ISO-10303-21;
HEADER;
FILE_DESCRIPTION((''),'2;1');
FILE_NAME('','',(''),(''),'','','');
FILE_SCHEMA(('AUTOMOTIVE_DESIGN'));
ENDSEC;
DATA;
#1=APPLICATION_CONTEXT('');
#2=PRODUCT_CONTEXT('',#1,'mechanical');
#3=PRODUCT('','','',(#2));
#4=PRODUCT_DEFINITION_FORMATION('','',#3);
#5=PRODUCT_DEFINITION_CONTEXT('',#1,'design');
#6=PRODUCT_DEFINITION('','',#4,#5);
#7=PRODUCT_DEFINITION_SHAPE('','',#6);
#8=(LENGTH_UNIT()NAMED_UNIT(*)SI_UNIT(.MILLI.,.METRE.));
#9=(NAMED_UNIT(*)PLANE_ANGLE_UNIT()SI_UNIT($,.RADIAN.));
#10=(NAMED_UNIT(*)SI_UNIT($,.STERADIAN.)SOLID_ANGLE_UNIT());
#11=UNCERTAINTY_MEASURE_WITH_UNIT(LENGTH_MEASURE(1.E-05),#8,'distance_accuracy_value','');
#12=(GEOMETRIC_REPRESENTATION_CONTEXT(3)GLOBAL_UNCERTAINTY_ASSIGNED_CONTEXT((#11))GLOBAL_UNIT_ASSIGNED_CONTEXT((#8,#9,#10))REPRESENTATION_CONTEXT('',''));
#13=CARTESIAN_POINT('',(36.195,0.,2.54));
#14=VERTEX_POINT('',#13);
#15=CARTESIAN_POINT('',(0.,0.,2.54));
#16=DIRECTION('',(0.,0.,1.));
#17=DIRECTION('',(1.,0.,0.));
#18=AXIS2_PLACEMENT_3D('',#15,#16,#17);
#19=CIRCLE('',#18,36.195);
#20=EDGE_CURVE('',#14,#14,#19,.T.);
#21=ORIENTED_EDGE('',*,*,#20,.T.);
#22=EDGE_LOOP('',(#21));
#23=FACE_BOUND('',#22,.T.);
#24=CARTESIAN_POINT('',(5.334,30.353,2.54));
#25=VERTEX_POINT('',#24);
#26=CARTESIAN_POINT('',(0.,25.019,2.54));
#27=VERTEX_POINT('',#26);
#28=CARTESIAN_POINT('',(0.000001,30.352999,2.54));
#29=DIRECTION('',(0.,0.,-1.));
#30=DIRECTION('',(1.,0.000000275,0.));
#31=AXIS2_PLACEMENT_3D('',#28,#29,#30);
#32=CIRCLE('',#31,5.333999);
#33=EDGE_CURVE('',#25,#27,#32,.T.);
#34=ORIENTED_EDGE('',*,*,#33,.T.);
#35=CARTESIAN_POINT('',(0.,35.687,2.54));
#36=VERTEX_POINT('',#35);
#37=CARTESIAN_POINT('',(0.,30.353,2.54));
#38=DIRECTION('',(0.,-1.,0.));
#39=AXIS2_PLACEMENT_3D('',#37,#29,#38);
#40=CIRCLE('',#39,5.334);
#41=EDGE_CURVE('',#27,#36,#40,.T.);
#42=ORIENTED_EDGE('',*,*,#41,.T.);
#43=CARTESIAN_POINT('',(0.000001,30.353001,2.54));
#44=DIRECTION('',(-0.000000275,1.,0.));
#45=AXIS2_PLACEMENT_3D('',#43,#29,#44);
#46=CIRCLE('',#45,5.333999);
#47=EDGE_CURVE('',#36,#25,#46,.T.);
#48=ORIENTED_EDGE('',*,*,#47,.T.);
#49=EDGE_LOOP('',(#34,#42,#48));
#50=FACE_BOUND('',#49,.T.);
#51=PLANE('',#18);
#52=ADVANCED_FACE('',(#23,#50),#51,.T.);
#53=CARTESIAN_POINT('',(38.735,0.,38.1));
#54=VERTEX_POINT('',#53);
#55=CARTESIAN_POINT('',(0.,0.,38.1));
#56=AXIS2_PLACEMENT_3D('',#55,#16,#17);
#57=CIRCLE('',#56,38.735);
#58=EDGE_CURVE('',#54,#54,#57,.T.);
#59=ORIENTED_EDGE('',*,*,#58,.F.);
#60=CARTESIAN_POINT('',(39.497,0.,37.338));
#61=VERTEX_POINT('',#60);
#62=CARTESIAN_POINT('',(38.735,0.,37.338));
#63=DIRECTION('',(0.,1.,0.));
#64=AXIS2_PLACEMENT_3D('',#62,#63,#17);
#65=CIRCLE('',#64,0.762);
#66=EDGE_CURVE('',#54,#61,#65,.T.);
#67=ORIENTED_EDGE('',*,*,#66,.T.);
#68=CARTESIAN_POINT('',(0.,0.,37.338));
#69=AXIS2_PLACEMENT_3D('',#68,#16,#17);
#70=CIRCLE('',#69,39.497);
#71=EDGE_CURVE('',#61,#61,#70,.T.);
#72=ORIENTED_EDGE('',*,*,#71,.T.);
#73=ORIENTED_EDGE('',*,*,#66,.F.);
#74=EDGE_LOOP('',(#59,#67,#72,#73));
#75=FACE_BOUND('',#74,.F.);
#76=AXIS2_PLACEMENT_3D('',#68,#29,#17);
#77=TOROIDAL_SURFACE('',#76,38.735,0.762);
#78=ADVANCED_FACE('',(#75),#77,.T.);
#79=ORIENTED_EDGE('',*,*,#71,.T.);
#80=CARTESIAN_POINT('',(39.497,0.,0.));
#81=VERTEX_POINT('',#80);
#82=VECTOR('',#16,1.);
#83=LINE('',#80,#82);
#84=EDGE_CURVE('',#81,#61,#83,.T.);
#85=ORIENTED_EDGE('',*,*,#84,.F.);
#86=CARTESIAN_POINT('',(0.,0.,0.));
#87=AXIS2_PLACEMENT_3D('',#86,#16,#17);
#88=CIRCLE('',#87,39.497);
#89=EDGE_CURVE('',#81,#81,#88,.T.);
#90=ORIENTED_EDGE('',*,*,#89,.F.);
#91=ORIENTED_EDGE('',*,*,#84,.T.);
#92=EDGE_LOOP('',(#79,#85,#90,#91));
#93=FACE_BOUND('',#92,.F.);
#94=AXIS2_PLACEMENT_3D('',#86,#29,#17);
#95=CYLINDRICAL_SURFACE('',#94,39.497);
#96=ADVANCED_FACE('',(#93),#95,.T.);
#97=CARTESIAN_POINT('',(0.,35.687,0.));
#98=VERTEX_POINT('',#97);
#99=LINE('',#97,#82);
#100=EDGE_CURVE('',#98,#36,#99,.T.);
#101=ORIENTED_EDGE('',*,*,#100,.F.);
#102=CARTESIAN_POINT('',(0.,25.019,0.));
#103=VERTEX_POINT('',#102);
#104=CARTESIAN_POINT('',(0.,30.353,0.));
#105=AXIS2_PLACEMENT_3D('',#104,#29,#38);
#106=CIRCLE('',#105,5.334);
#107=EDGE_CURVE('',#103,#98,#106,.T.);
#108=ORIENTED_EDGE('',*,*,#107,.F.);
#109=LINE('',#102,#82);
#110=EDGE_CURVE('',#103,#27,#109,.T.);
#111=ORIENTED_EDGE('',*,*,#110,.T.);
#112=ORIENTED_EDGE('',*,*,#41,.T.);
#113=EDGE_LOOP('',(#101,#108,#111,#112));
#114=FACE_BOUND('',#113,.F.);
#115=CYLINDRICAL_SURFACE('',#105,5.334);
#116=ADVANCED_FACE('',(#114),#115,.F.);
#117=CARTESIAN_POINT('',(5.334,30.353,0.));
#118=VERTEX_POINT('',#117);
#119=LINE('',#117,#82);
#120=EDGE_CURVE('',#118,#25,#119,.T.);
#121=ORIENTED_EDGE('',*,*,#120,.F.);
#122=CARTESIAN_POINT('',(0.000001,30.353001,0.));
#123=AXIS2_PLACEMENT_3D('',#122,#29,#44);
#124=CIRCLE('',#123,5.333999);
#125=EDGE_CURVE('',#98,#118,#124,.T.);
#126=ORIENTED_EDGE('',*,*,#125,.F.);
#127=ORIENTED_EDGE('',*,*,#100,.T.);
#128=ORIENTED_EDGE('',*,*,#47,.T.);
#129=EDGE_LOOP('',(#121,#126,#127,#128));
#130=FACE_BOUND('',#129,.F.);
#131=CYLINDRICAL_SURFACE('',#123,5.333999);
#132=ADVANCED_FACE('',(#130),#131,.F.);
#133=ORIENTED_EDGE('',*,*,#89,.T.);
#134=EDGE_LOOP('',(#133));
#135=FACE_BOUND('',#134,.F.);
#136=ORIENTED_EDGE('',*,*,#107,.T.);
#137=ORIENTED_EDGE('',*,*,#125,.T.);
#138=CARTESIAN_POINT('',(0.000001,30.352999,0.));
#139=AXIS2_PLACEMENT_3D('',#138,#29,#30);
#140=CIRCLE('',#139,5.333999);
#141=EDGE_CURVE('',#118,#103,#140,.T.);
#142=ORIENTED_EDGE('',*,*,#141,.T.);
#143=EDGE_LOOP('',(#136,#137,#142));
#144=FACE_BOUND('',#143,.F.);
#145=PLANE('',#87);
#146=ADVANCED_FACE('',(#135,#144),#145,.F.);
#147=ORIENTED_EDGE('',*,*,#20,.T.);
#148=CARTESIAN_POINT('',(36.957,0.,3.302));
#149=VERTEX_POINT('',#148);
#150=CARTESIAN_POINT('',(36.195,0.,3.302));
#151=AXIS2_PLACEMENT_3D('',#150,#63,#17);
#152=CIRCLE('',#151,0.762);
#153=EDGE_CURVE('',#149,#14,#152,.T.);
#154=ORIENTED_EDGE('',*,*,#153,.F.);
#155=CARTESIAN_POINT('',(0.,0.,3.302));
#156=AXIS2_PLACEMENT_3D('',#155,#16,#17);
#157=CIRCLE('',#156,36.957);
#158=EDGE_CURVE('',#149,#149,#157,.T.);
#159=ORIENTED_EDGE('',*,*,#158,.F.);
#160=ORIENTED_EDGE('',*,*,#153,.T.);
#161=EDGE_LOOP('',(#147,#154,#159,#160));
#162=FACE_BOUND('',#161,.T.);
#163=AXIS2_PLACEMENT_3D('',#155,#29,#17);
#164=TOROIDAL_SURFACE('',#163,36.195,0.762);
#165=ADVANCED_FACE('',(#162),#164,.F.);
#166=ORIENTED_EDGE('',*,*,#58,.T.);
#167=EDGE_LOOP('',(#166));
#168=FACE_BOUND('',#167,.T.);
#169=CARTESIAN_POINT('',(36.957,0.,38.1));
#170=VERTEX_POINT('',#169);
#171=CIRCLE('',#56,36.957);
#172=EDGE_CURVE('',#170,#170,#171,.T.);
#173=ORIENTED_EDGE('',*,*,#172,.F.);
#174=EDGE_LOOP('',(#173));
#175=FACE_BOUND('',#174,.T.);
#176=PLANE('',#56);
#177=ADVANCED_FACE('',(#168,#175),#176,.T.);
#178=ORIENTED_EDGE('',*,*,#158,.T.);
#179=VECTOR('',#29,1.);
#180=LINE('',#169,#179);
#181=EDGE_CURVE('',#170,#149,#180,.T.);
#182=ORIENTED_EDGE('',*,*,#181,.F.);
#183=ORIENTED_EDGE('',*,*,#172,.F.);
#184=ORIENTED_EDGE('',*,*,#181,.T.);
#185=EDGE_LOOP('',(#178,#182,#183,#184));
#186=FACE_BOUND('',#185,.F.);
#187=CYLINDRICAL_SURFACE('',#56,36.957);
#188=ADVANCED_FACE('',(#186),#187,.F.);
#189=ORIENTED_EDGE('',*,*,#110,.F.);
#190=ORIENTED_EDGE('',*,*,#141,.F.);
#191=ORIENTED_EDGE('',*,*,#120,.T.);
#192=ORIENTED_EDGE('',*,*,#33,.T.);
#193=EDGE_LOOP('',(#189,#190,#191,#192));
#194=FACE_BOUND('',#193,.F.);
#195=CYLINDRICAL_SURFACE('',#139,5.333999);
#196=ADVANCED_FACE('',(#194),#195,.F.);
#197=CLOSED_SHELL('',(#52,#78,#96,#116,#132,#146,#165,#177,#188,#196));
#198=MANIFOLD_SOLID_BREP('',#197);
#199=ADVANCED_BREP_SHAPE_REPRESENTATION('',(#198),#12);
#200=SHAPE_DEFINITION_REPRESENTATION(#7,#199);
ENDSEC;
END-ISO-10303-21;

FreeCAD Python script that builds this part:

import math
import FreeCAD as App
import Part
import Sketcher

V = App.Vector
Q = App.Units.Quantity


def edges_at(feature, points):
    """Names of the edges that pass closest to the given points."""
    edges = feature.Shape.Edges
    near = lambda p: min(range(len(edges)), key=lambda i: edges[i].distToShape(Part.Vertex(*p))[0])
    return sorted({f"Edge{near(p) + 1}" for p in points})

doc = App.newDocument("Part")
params = doc.addObject("Spreadsheet::Sheet", "Params")
for row, (alias, value) in enumerate([
    ("sketch1_diameter", "3.11 in"),
    ("pad1_length", "1.5 in"),
    ("sketch2_diameter", "2.91 in"),
    ("pocket1_length", "1.4 in"),
    ("fillet_radius", "0.03 in"),
    ("fillet2_radius", "0.03 in"),
    ("sketch3_radius", "0.2099999 in"),
    ("pocket2_length", "1 in"),
], start=1):
    params.set(f"A{row}", alias)
    params.set(f"B{row}", "=" + value)
    params.setAlias(f"B{row}", alias)

body = doc.addObject("PartDesign::Body", "Body")

# Sketch on XY plane
sketch1 = body.newObject("Sketcher::SketchObject", "Sketch")
sketch1.AttachmentSupport = (doc.getObject("XY_Plane"), [""])
sketch1.MapMode = "FlatFace"
sketch1.addGeometry(Part.Circle(V(0, 0, 0), V(0, 0, 1), 39), False)
sketch1.addConstraint(Sketcher.Constraint("Coincident", 0, 3, -1, 1))
sketch1.addConstraint(Sketcher.Constraint("Diameter", 0, Q("3.11 in")))
sketch1.setExpression("Constraints[1]", "Params.sketch1_diameter")
pad1 = body.newObject("PartDesign::Pad", "Pad")
pad1.Profile = sketch1
pad1.setExpression("Length", "Params.pad1_length")

# Sketch on XY plane
sketch2 = body.newObject("Sketcher::SketchObject", "Sketch001")
sketch2.AttachmentSupport = (doc.getObject("XY_Plane"), [""])
sketch2.MapMode = "FlatFace"
sketch2.AttachmentOffset = App.Placement(V(0, 0, 1.5 * 25.4), App.Rotation())
sketch2.addGeometry(Part.Circle(V(0, 0, 0), V(0, 0, 1), 37), False)
sketch2.addConstraint(Sketcher.Constraint("Coincident", 0, 3, -1, 1))
sketch2.addConstraint(Sketcher.Constraint("Diameter", 0, Q("2.91 in")))
sketch2.setExpression("Constraints[1]", "Params.sketch2_diameter")
pocket1 = body.newObject("PartDesign::Pocket", "Pocket")
pocket1.Profile = sketch2
pocket1.setExpression("Length", "Params.pocket1_length")
doc.recompute()

fillet = body.newObject("PartDesign::Fillet", "Fillet")
fillet.Base = (pocket1, edges_at(pocket1, [(-36.957, 0, 2.54)]))
fillet.setExpression("Radius", "Params.fillet_radius")
doc.recompute()

fillet2 = body.newObject("PartDesign::Fillet", "Fillet001")
fillet2.Base = (fillet, edges_at(fillet, [(-39.497, 0, 38.1)]))
fillet2.setExpression("Radius", "Params.fillet2_radius")

# Sketch on XY plane
sketch3 = body.newObject("Sketcher::SketchObject", "Sketch002")
sketch3.AttachmentSupport = (doc.getObject("XY_Plane"), [""])
sketch3.MapMode = "FlatFace"
sketch3.addGeometry(Part.ArcOfCircle(Part.Circle(V(0, 30, 0), V(0, 0, 1), 5), math.radians(0), math.radians(90)), False)
sketch3.addGeometry(Part.ArcOfCircle(Part.Circle(V(0, 30, 0), V(0, 0, 1), 5), math.radians(-90), math.radians(0)), False)
sketch3.addGeometry(Part.ArcOfCircle(Part.Circle(V(0, 30, 0), V(0, 0, 1), 5), math.radians(90), math.radians(270)), False)
sketch3.addConstraint(Sketcher.Constraint("Tangent", 0, 1, 1, 2))
sketch3.addConstraint(Sketcher.Constraint("Tangent", 1, 1, 2, 2))
sketch3.addConstraint(Sketcher.Constraint("Tangent", 2, 1, 0, 2))
sketch3.addConstraint(Sketcher.Constraint("PointOnObject", 0, 3, -2))
sketch3.addConstraint(Sketcher.Constraint("PointOnObject", 1, 1, -2))
sketch3.addConstraint(Sketcher.Constraint("PointOnObject", 2, 1, -2))
sketch3.addConstraint(Sketcher.Constraint("Horizontal", 2, 3, 0, 1))
sketch3.addConstraint(Sketcher.Constraint("Radius", 0, Q("0.2099999 in")))
sketch3.addConstraint(Sketcher.Constraint("DistanceY", -1, 1, 0, 3, Q("1.1950001 in")))
sketch3.setExpression("Constraints[7]", "Params.sketch3_radius")
pocket2 = body.newObject("PartDesign::Pocket", "Pocket001")
pocket2.Profile = sketch3
pocket2.setExpression("Length", "Params.pocket2_length")
pocket2.Reversed = True

doc.recompute()
